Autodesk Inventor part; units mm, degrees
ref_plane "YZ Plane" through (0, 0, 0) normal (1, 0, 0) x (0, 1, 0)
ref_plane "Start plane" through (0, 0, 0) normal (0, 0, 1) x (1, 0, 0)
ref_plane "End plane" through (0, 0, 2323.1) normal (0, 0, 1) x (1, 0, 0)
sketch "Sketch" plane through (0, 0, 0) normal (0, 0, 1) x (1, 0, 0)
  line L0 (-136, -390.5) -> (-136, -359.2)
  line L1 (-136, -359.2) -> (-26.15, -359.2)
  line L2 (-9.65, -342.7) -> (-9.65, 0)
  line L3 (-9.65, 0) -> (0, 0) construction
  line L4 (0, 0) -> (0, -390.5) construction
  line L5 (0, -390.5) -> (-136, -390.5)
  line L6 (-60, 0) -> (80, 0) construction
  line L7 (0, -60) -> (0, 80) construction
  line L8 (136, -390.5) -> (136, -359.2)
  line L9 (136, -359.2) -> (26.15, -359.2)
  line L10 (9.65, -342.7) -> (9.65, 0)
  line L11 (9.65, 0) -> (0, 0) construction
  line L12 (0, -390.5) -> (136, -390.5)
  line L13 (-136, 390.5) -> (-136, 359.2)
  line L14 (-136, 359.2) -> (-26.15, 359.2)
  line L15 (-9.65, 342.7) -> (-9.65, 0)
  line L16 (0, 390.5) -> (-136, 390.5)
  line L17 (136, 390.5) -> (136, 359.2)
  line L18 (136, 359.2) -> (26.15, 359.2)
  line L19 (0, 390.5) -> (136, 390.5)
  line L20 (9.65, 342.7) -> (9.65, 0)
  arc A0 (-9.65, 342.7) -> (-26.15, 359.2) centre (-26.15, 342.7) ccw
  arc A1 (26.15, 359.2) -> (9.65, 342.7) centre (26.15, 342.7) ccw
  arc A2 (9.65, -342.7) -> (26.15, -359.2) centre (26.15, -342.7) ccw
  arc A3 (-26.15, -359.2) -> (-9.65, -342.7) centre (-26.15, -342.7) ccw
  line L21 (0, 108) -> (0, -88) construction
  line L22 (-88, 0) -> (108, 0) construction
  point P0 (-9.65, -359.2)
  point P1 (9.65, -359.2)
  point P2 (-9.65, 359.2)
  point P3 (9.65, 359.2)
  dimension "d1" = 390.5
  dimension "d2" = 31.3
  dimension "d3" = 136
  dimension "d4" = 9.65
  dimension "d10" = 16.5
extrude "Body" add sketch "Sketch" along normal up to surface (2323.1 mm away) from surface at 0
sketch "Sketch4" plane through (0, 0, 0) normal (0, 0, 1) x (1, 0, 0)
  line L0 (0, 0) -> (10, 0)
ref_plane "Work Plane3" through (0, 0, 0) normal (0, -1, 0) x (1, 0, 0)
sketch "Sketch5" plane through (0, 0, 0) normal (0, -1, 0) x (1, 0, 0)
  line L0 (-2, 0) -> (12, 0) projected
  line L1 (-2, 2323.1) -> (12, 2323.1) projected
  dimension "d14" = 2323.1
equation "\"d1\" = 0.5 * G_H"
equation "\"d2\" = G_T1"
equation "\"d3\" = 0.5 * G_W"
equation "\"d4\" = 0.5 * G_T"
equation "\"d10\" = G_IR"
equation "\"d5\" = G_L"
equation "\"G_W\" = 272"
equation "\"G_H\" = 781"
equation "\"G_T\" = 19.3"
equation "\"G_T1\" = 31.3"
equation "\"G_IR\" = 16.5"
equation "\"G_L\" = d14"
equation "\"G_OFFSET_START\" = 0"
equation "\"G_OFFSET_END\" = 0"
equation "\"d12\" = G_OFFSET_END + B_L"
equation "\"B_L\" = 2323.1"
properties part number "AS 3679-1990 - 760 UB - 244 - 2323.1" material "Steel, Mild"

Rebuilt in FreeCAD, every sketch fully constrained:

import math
import FreeCAD as App
import Part
import Sketcher
from FreeCAD import Vector

doc = App.newDocument("Part")
params = doc.addObject("Spreadsheet::Sheet", "Params")
for row, (alias, value) in enumerate([
    ("sketch1_radius", "16.5 mm"),
    ("sketch1_height", "31.3 mm"),
    ("pad1_length", "2323.1 mm"),
], start=1):
    params.set(f"A{row}", alias)
    params.set(f"B{row}", "=" + value)
    params.setAlias(f"B{row}", alias)

body = doc.addObject("PartDesign::Body", "Body")

sketch1 = body.newObject("Sketcher::SketchObject", "Sketch")
sketch1.AttachmentSupport = (doc.getObject("XY_Plane"), [""])
sketch1.MapMode = "FlatFace"
sketch1.addGeometry(Part.LineSegment(Vector(-136, -359, 0), Vector(-136, -390, 0)), False)
sketch1.addGeometry(Part.LineSegment(Vector(-136, -390, 0), Vector(136, -390, 0)), False)
sketch1.addGeometry(Part.LineSegment(Vector(136, -390, 0), Vector(136, -359, 0)), False)
sketch1.addGeometry(Part.LineSegment(Vector(136, -359, 0), Vector(26, -359, 0)), False)
sketch1.addGeometry(Part.ArcOfCircle(Part.Circle(Vector(26, -343, 0), Vector(0, 0, 1), 16), math.radians(180), math.radians(270)), False)
sketch1.addGeometry(Part.LineSegment(Vector(10, -343, 0), Vector(10, 343, 0)), False)
sketch1.addGeometry(Part.ArcOfCircle(Part.Circle(Vector(26, 343, 0), Vector(0, 0, 1), 16), math.radians(90), math.radians(180)), False)
sketch1.addGeometry(Part.LineSegment(Vector(26, 359, 0), Vector(136, 359, 0)), False)
sketch1.addGeometry(Part.LineSegment(Vector(136, 359, 0), Vector(136, 390, 0)), False)
sketch1.addGeometry(Part.LineSegment(Vector(136, 390, 0), Vector(-136, 390, 0)), False)
sketch1.addGeometry(Part.LineSegment(Vector(-136, 390, 0), Vector(-136, 359, 0)), False)
sketch1.addGeometry(Part.LineSegment(Vector(-136, 359, 0), Vector(-26, 359, 0)), False)
sketch1.addGeometry(Part.ArcOfCircle(Part.Circle(Vector(-26, 343, 0), Vector(0, 0, 1), 16), math.radians(0), math.radians(90)), False)
sketch1.addGeometry(Part.LineSegment(Vector(-10, 343, 0), Vector(-10, -343, 0)), False)
sketch1.addGeometry(Part.ArcOfCircle(Part.Circle(Vector(-26, -343, 0), Vector(0, 0, 1), 16), math.radians(-90), math.radians(0)), False)
sketch1.addGeometry(Part.LineSegment(Vector(-26, -359, 0), Vector(-136, -359, 0)), False)
sketch1.addConstraint(Sketcher.Constraint("Coincident", 0, 2, 1, 1))
sketch1.addConstraint(Sketcher.Constraint("Coincident", 1, 2, 2, 1))
sketch1.addConstraint(Sketcher.Constraint("Coincident", 2, 2, 3, 1))
sketch1.addConstraint(Sketcher.Constraint("Tangent", 3, 2, 4, 2))
sketch1.addConstraint(Sketcher.Constraint("Tangent", 4, 1, 5, 1))
sketch1.addConstraint(Sketcher.Constraint("Tangent", 5, 2, 6, 2))
sketch1.addConstraint(Sketcher.Constraint("Tangent", 6, 1, 7, 1))
sketch1.addConstraint(Sketcher.Constraint("Coincident", 7, 2, 8, 1))
sketch1.addConstraint(Sketcher.Constraint("Coincident", 8, 2, 9, 1))
sketch1.addConstraint(Sketcher.Constraint("Coincident", 9, 2, 10, 1))
sketch1.addConstraint(Sketcher.Constraint("Coincident", 10, 2, 11, 1))
sketch1.addConstraint(Sketcher.Constraint("Tangent", 11, 2, 12, 2))
sketch1.addConstraint(Sketcher.Constraint("Tangent", 12, 1, 13, 1))
sketch1.addConstraint(Sketcher.Constraint("Tangent", 13, 2, 14, 2))
sketch1.addConstraint(Sketcher.Constraint("Tangent", 14, 1, 15, 1))
sketch1.addConstraint(Sketcher.Constraint("Coincident", 15, 2, 0, 1))
sketch1.addConstraint(Sketcher.Constraint("Vertical", 0))
sketch1.addConstraint(Sketcher.Constraint("Horizontal", 1))
sketch1.addConstraint(Sketcher.Constraint("Vertical", 2))
sketch1.addConstraint(Sketcher.Constraint("Horizontal", 3))
sketch1.addConstraint(Sketcher.Constraint("Vertical", 5))
sketch1.addConstraint(Sketcher.Constraint("Horizontal", 7))
sketch1.addConstraint(Sketcher.Constraint("Vertical", 8))
sketch1.addConstraint(Sketcher.Constraint("Horizontal", 9))
sketch1.addConstraint(Sketcher.Constraint("Vertical", 10))
sketch1.addConstraint(Sketcher.Constraint("Horizontal", 11))
sketch1.addConstraint(Sketcher.Constraint("Vertical", 13))
sketch1.addConstraint(Sketcher.Constraint("Horizontal", 15))
sketch1.addConstraint(Sketcher.Constraint("Equal", 4, 6))
sketch1.addConstraint(Sketcher.Constraint("Equal", 6, 12))
sketch1.addConstraint(Sketcher.Constraint("Equal", 12, 14))
sketch1.addConstraint(Sketcher.Constraint("Symmetric", 4, 3, 12, 3, -1, 1))
sketch1.addConstraint(Sketcher.Constraint("Symmetric", 0, 2, 8, 2, -1, 1))
sketch1.addConstraint(Sketcher.Constraint("Symmetric", 7, 2, 10, 2, -2))
sketch1.addConstraint(Sketcher.Constraint("Symmetric", 2, 2, 15, 2, -2))
sketch1.addConstraint(Sketcher.Constraint("Radius", 4, 16.5))
sketch1.addConstraint(Sketcher.Constraint("DistanceY", 0, 2, 0, 1, 31.3))
sketch1.addConstraint(Sketcher.Constraint("DistanceX", 0, 2, -1, 1, 136.0))
sketch1.addConstraint(Sketcher.Constraint("DistanceY", 0, 2, -1, 1, 390.5))
sketch1.addConstraint(Sketcher.Constraint("DistanceX", -1, 1, 4, 1, 9.65))
sketch1.setExpression("Constraints[35]", "Params.sketch1_radius")
sketch1.setExpression("Constraints[36]", "Params.sketch1_height")
pad1 = body.newObject("PartDesign::Pad", "Pad")
pad1.Profile = sketch1
pad1.setExpression("Length", "Params.pad1_length")

doc.recompute()
